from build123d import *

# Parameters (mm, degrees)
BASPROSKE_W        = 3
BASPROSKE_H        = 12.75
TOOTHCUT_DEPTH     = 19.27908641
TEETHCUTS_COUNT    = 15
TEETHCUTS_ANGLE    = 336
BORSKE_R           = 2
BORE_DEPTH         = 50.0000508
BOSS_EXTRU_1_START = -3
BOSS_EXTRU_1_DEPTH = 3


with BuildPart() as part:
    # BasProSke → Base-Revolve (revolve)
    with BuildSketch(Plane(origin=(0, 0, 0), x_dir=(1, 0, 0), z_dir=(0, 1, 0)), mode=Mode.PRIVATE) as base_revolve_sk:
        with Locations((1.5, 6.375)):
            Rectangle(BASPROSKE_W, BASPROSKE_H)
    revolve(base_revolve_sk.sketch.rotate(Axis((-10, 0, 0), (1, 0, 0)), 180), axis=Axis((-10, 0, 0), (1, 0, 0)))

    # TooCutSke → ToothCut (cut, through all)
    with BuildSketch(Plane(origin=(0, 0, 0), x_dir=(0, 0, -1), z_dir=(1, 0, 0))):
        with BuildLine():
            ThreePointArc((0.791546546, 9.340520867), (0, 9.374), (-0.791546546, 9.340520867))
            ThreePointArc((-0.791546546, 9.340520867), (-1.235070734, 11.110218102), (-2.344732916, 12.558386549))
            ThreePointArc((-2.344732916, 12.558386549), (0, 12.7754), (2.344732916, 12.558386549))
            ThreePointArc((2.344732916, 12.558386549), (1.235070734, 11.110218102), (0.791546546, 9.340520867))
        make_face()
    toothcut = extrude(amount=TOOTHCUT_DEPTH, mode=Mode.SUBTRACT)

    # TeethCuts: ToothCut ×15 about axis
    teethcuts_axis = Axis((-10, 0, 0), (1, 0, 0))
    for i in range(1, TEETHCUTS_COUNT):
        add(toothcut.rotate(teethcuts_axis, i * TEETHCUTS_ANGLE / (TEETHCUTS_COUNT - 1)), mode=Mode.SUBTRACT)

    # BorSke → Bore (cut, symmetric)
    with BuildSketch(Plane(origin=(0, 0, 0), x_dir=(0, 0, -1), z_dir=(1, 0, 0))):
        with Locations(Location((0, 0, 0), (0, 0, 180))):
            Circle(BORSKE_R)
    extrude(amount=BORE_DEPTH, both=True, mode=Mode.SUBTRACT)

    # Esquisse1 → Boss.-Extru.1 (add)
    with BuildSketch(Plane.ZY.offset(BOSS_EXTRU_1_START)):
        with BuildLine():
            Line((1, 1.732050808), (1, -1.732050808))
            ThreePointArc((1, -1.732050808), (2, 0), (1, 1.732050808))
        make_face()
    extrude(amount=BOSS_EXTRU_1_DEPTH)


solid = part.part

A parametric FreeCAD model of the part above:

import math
import FreeCAD as App
import Part
import Sketcher
from FreeCAD import Vector


def add_polygon(sketch, points):
    """Adds a closed chain of lines whose ends are joined by coincident constraints."""
    first, n = sketch.GeometryCount, len(points)
    for a, b in zip(points, points[1:] + points[:1]):
        sketch.addGeometry(Part.LineSegment(App.Vector(*a, 0), App.Vector(*b, 0)), False)
    for i in range(n):
        sketch.addConstraint(Sketcher.Constraint("Coincident", first + i, 2, first + (i + 1) % n, 1))

doc = App.newDocument("Part")
body = doc.addObject("PartDesign::Body", "Body")

sketch1 = body.newObject("Sketcher::SketchObject", "Sketch")
sketch1.AttachmentSupport = (doc.getObject("XZ_Plane"), [""])
sketch1.MapMode = "FlatFace"
add_polygon(sketch1, [(0, -12.75), (0, 0), (3, 0), (3, -12.75)])
sketch1.addConstraint(Sketcher.Constraint("Vertical", 0))
sketch1.addConstraint(Sketcher.Constraint("Horizontal", 1))
sketch1.addConstraint(Sketcher.Constraint("Vertical", 2))
sketch1.addConstraint(Sketcher.Constraint("Horizontal", 3))
sketch1.addConstraint(Sketcher.Constraint("Coincident", 0, 2, -1, 1))
sketch1.addConstraint(Sketcher.Constraint("DistanceX", 1, 1, 1, 2, 3.0))
sketch1.addConstraint(Sketcher.Constraint("DistanceY", 0, 1, 0, 2, 12.75))
revolution = body.newObject("PartDesign::Revolution", "Revolution")
revolution.Profile = sketch1
revolution.ReferenceAxis = (sketch1, ["H_Axis"])
revolution.Angle = 360

sketch2 = body.newObject("Sketcher::SketchObject", "Sketch001")
sketch2.AttachmentSupport = (doc.getObject("YZ_Plane"), [""])
sketch2.MapMode = "FlatFace"
sketch2.addGeometry(Part.ArcOfCircle(Part.Circle(Vector(0, 0, 0), Vector(0, 0, 1), 9.374), math.radians(-4.84386), math.radians(4.84386)), False)
sketch2.addGeometry(Part.ArcOfCircle(Part.Circle(Vector(9.154119, -5.287684, 0), Vector(0, 0, 1), 4.5), math.radians(40.843049), math.radians(87.625979)), False)
sketch2.addGeometry(Part.ArcOfCircle(Part.Circle(Vector(0, 0, 0), Vector(0, 0, 1), 12.7754), math.radians(-10.575731), math.radians(10.575731)), False)
sketch2.addGeometry(Part.ArcOfCircle(Part.Circle(Vector(9.154119, 5.287684, 0), Vector(0, 0, 1), 4.5), math.radians(-87.625979), math.radians(-40.843049)), False)
sketch2.addConstraint(Sketcher.Constraint("Coincident", 0, 1, 1, 2))
sketch2.addConstraint(Sketcher.Constraint("Coincident", 1, 1, 2, 1))
sketch2.addConstraint(Sketcher.Constraint("Coincident", 2, 2, 3, 2))
sketch2.addConstraint(Sketcher.Constraint("Coincident", 3, 1, 0, 2))
sketch2.addConstraint(Sketcher.Constraint("Coincident", 0, 3, -1, 1))
sketch2.addConstraint(Sketcher.Constraint("Coincident", 2, 3, -1, 1))
sketch2.addConstraint(Sketcher.Constraint("Equal", 1, 3))
sketch2.addConstraint(Sketcher.Constraint("Symmetric", 1, 3, 3, 3, -1))
sketch2.addConstraint(Sketcher.Constraint("Radius", 1, 4.5))
sketch2.addConstraint(Sketcher.Constraint("Radius", 0, 9.374))
sketch2.addConstraint(Sketcher.Constraint("Radius", 2, 12.7754))
sketch2.addConstraint(Sketcher.Constraint("DistanceX", 1, 3, 0, 1, 0.186402))
sketch2.addConstraint(Sketcher.Constraint("DistanceX", -1, 1, 1, 3, 9.154119))
pocket1 = body.newObject("PartDesign::Pocket", "Pocket")
pocket1.Profile = sketch2
pocket1.Type = "ThroughAll"
pocket1.Reversed = True
doc.recompute()

polarpattern = body.newObject("PartDesign::PolarPattern", "PolarPattern")
polarpattern.Originals = [pocket1]
polarpattern.Axis = (doc.getObject("X_Axis"), [""])
polarpattern.Angle = 360
polarpattern.Occurrences = 15
body.Tip = polarpattern

sketch3 = body.newObject("Sketcher::SketchObject", "Sketch002")
sketch3.AttachmentSupport = (doc.getObject("YZ_Plane"), [""])
sketch3.MapMode = "FlatFace"
sketch3.addGeometry(Part.Circle(Vector(0, 0, 0), Vector(0, 0, 1), 2), False)
sketch3.addConstraint(Sketcher.Constraint("Coincident", 0, 3, -1, 1))
sketch3.addConstraint(Sketcher.Constraint("Diameter", 0, 4.0))
pocket2 = body.newObject("PartDesign::Pocket", "Pocket001")
pocket2.Profile = sketch3
pocket2.Length = 100.000102
pocket2.Midplane = True

sketch4 = body.newObject("Sketcher::SketchObject", "Sketch003")
sketch4.AttachmentSupport = (doc.getObject("YZ_Plane"), [""])
sketch4.MapMode = "FlatFace"
sketch4.AttachmentOffset = App.Placement(Vector(0, 0, 3), App.Rotation())
sketch4.addGeometry(Part.LineSegment(Vector(1.732051, 1, 0), Vector(-1.732051, 1, 0)), False)
sketch4.addGeometry(Part.ArcOfCircle(Part.Circle(Vector(0, 0, 0), Vector(0, 0, 1), 2), math.radians(30), math.radians(150)), False)
sketch4.addConstraint(Sketcher.Constraint("Coincident", 0, 1, 1, 1))
sketch4.addConstraint(Sketcher.Constraint("Coincident", 1, 2, 0, 2))
sketch4.addConstraint(Sketcher.Constraint("Horizontal", 0))
sketch4.addConstraint(Sketcher.Constraint("Coincident", 1, 3, -1, 1))
sketch4.addConstraint(Sketcher.Constraint("Radius", 1, 2.0))
sketch4.addConstraint(Sketcher.Constraint("DistanceY", -1, 1, 0, 1, 1.0))
pad1 = body.newObject("PartDesign::Pad", "Pad")
pad1.Profile = sketch4
pad1.Length = 3
pad1.Reversed = True

doc.recompute()
